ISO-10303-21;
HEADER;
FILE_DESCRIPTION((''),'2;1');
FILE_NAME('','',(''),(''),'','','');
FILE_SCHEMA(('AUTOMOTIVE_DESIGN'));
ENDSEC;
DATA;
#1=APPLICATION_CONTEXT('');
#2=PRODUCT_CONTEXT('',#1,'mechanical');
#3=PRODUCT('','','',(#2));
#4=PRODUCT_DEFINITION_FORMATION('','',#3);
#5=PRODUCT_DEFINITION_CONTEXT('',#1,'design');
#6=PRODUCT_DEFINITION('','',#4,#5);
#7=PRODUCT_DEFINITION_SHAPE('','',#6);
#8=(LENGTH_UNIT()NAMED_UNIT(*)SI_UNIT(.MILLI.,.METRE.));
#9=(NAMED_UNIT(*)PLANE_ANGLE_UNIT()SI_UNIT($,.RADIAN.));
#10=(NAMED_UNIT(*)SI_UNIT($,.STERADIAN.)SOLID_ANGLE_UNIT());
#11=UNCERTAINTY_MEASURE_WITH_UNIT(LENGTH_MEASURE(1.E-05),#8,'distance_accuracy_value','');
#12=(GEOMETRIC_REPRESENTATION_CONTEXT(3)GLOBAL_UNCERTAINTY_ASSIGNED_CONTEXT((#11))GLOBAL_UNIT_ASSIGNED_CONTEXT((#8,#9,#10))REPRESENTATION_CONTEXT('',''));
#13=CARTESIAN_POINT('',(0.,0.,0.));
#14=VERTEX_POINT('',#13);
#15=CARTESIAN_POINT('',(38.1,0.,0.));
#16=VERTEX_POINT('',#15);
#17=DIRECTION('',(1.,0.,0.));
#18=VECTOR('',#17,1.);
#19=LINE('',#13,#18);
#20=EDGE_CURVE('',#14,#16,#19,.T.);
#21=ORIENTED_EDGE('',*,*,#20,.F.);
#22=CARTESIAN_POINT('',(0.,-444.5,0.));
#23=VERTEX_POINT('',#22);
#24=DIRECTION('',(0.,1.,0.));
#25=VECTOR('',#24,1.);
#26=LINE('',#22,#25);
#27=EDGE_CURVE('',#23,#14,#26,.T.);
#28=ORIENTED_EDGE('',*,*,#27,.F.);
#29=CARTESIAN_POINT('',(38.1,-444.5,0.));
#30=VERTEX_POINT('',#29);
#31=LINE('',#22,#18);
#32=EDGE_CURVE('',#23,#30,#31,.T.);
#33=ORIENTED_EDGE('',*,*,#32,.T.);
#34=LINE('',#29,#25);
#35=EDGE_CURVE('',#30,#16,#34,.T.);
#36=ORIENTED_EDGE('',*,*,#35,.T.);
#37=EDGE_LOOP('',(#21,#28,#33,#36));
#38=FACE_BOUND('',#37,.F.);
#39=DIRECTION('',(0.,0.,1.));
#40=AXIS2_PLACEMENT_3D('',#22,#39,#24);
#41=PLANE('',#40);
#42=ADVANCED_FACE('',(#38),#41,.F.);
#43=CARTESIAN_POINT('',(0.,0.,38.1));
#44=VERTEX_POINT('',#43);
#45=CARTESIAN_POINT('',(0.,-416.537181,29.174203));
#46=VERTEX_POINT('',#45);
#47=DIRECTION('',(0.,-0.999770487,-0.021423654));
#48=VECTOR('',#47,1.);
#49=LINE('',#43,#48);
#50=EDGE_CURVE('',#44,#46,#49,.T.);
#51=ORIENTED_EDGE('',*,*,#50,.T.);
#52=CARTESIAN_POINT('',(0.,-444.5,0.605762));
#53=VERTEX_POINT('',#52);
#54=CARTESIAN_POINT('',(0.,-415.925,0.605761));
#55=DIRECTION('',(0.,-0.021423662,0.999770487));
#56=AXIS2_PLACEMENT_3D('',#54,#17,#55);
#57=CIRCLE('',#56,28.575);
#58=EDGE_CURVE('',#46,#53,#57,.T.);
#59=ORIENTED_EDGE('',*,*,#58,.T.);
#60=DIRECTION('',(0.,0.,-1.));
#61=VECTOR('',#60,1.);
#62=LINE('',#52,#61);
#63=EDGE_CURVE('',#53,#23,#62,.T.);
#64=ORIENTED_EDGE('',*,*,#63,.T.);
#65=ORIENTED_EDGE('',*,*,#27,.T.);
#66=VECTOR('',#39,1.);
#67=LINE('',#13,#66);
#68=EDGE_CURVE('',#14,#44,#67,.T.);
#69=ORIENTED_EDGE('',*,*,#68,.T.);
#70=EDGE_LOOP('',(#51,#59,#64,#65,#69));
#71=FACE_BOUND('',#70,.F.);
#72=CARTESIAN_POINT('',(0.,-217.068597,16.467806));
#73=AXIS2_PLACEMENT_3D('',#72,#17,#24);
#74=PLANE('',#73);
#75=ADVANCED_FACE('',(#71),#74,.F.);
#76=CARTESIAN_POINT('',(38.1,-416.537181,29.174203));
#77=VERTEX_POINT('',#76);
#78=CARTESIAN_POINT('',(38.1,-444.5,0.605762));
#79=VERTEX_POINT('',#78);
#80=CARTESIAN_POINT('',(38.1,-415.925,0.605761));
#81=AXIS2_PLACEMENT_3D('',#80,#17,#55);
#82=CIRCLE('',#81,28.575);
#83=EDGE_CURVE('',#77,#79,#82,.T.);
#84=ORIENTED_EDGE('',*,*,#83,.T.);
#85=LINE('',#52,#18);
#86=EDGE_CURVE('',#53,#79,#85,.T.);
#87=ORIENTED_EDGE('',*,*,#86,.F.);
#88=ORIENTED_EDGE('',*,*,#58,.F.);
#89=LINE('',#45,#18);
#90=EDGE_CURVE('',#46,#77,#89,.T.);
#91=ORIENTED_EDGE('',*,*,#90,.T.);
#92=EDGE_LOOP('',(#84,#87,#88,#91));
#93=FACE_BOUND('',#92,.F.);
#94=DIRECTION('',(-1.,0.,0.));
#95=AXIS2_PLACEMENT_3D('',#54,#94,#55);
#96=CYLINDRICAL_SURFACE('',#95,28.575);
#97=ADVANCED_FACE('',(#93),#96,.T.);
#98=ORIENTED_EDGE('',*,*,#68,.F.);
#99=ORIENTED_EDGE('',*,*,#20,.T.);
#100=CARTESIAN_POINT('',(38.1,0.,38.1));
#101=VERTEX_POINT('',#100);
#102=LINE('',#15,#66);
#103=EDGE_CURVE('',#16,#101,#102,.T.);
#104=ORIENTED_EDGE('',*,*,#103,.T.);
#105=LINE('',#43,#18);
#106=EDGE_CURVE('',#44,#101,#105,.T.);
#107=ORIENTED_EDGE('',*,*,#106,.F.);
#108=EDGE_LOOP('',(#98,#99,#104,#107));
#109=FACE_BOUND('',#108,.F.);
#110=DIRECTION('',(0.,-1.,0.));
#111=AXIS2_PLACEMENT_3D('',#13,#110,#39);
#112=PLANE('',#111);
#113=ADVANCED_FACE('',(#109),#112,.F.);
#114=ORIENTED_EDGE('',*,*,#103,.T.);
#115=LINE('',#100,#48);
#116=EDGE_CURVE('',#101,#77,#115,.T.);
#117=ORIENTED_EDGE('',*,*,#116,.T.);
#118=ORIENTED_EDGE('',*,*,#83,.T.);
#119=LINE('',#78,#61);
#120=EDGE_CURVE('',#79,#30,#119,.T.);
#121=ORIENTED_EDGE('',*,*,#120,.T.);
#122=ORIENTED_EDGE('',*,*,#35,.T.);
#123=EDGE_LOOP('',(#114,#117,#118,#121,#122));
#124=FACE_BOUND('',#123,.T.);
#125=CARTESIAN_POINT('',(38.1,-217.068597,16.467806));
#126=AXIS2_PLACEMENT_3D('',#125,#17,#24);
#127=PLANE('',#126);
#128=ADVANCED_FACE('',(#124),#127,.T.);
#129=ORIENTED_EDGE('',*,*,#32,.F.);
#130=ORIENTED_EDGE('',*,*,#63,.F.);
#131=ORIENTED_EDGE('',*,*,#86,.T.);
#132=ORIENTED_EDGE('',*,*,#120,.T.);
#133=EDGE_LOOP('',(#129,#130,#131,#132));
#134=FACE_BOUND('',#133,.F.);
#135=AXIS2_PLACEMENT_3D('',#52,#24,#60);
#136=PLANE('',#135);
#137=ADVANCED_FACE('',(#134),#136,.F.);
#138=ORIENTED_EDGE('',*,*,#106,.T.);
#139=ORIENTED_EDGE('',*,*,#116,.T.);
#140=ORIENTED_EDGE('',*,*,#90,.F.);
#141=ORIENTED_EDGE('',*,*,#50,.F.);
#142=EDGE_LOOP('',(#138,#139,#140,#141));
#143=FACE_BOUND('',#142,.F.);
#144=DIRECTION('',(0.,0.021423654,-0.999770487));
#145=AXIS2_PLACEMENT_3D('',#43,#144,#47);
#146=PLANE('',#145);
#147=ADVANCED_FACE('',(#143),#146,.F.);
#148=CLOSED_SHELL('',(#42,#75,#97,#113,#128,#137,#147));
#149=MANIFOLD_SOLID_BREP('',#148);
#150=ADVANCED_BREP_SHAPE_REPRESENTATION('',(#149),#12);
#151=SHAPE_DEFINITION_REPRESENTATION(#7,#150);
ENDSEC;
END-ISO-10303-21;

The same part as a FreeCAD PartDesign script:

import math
import FreeCAD as App
import Part
import Sketcher
from FreeCAD import Vector
Q = App.Units.Quantity

doc = App.newDocument("Part")
params = doc.addObject("Spreadsheet::Sheet", "Params")
for row, (alias, value) in enumerate([
    ("sketch1_width", "17.5 in"),
    ("sketch1_height", "1.5 in"),
    ("sketch1_radius", "1.125 in"),
    ("pad1_length", "1.5 in"),
], start=1):
    params.set(f"A{row}", alias)
    params.set(f"B{row}", "=" + value)
    params.setAlias(f"B{row}", alias)

body = doc.addObject("PartDesign::Body", "Body")

# Sketch on YZ plane
sketch1 = body.newObject("Sketcher::SketchObject", "Sketch")
sketch1.AttachmentSupport = (doc.getObject("YZ_Plane"), [""])
sketch1.MapMode = "FlatFace"
sketch1.addGeometry([
    Part.LineSegment(Vector(-444.5, 0, 0), Vector(0, 0, 0)),  # 0
    Part.LineSegment(Vector(0, 0, 0), Vector(0, 38.1, 0)),  # 1
    Part.LineSegment(Vector(0, 38.1, 0), Vector(-416.5, 29.2, 0)),  # 2
    Part.ArcOfCircle(Part.Circle(Vector(-415.9, 0.6, 0), Vector(0, 0, 1), 28.6), math.radians(91), math.radians(180)),  # 3
    Part.LineSegment(Vector(-444.5, 0.6, 0), Vector(-444.5, 0, 0)),  # 4
], False)
sketch1.addConstraint([
    Sketcher.Constraint("Coincident", 0, 2, 1, 1),
    Sketcher.Constraint("Coincident", 1, 2, 2, 1),
    Sketcher.Constraint("Tangent", 2, 2, 3, 1),
    Sketcher.Constraint("Tangent", 3, 2, 4, 1),
    Sketcher.Constraint("Coincident", 4, 2, 0, 1),
    Sketcher.Constraint("Horizontal", 0),
    Sketcher.Constraint("Vertical", 1),
    Sketcher.Constraint("Vertical", 4),
    Sketcher.Constraint("Coincident", 0, 2, -1, 1),
    Sketcher.Constraint("DistanceX", 0, 1, 0, 2, Q("17.5 in")),
    Sketcher.Constraint("DistanceY", 1, 1, 1, 2, Q("1.5 in")),
    Sketcher.Constraint("Radius", 3, Q("1.125 in")),
    Sketcher.Constraint("DistanceY", 4, 2, 4, 1, 0.605762),
])
sketch1.setExpression("Constraints[9]", "Params.sketch1_width")
sketch1.setExpression("Constraints[10]", "Params.sketch1_height")
sketch1.setExpression("Constraints[11]", "Params.sketch1_radius")
pad1 = body.newObject("PartDesign::Pad", "Pad")
pad1.Profile = sketch1
pad1.setExpression("Length", "Params.pad1_length")

doc.recompute()
